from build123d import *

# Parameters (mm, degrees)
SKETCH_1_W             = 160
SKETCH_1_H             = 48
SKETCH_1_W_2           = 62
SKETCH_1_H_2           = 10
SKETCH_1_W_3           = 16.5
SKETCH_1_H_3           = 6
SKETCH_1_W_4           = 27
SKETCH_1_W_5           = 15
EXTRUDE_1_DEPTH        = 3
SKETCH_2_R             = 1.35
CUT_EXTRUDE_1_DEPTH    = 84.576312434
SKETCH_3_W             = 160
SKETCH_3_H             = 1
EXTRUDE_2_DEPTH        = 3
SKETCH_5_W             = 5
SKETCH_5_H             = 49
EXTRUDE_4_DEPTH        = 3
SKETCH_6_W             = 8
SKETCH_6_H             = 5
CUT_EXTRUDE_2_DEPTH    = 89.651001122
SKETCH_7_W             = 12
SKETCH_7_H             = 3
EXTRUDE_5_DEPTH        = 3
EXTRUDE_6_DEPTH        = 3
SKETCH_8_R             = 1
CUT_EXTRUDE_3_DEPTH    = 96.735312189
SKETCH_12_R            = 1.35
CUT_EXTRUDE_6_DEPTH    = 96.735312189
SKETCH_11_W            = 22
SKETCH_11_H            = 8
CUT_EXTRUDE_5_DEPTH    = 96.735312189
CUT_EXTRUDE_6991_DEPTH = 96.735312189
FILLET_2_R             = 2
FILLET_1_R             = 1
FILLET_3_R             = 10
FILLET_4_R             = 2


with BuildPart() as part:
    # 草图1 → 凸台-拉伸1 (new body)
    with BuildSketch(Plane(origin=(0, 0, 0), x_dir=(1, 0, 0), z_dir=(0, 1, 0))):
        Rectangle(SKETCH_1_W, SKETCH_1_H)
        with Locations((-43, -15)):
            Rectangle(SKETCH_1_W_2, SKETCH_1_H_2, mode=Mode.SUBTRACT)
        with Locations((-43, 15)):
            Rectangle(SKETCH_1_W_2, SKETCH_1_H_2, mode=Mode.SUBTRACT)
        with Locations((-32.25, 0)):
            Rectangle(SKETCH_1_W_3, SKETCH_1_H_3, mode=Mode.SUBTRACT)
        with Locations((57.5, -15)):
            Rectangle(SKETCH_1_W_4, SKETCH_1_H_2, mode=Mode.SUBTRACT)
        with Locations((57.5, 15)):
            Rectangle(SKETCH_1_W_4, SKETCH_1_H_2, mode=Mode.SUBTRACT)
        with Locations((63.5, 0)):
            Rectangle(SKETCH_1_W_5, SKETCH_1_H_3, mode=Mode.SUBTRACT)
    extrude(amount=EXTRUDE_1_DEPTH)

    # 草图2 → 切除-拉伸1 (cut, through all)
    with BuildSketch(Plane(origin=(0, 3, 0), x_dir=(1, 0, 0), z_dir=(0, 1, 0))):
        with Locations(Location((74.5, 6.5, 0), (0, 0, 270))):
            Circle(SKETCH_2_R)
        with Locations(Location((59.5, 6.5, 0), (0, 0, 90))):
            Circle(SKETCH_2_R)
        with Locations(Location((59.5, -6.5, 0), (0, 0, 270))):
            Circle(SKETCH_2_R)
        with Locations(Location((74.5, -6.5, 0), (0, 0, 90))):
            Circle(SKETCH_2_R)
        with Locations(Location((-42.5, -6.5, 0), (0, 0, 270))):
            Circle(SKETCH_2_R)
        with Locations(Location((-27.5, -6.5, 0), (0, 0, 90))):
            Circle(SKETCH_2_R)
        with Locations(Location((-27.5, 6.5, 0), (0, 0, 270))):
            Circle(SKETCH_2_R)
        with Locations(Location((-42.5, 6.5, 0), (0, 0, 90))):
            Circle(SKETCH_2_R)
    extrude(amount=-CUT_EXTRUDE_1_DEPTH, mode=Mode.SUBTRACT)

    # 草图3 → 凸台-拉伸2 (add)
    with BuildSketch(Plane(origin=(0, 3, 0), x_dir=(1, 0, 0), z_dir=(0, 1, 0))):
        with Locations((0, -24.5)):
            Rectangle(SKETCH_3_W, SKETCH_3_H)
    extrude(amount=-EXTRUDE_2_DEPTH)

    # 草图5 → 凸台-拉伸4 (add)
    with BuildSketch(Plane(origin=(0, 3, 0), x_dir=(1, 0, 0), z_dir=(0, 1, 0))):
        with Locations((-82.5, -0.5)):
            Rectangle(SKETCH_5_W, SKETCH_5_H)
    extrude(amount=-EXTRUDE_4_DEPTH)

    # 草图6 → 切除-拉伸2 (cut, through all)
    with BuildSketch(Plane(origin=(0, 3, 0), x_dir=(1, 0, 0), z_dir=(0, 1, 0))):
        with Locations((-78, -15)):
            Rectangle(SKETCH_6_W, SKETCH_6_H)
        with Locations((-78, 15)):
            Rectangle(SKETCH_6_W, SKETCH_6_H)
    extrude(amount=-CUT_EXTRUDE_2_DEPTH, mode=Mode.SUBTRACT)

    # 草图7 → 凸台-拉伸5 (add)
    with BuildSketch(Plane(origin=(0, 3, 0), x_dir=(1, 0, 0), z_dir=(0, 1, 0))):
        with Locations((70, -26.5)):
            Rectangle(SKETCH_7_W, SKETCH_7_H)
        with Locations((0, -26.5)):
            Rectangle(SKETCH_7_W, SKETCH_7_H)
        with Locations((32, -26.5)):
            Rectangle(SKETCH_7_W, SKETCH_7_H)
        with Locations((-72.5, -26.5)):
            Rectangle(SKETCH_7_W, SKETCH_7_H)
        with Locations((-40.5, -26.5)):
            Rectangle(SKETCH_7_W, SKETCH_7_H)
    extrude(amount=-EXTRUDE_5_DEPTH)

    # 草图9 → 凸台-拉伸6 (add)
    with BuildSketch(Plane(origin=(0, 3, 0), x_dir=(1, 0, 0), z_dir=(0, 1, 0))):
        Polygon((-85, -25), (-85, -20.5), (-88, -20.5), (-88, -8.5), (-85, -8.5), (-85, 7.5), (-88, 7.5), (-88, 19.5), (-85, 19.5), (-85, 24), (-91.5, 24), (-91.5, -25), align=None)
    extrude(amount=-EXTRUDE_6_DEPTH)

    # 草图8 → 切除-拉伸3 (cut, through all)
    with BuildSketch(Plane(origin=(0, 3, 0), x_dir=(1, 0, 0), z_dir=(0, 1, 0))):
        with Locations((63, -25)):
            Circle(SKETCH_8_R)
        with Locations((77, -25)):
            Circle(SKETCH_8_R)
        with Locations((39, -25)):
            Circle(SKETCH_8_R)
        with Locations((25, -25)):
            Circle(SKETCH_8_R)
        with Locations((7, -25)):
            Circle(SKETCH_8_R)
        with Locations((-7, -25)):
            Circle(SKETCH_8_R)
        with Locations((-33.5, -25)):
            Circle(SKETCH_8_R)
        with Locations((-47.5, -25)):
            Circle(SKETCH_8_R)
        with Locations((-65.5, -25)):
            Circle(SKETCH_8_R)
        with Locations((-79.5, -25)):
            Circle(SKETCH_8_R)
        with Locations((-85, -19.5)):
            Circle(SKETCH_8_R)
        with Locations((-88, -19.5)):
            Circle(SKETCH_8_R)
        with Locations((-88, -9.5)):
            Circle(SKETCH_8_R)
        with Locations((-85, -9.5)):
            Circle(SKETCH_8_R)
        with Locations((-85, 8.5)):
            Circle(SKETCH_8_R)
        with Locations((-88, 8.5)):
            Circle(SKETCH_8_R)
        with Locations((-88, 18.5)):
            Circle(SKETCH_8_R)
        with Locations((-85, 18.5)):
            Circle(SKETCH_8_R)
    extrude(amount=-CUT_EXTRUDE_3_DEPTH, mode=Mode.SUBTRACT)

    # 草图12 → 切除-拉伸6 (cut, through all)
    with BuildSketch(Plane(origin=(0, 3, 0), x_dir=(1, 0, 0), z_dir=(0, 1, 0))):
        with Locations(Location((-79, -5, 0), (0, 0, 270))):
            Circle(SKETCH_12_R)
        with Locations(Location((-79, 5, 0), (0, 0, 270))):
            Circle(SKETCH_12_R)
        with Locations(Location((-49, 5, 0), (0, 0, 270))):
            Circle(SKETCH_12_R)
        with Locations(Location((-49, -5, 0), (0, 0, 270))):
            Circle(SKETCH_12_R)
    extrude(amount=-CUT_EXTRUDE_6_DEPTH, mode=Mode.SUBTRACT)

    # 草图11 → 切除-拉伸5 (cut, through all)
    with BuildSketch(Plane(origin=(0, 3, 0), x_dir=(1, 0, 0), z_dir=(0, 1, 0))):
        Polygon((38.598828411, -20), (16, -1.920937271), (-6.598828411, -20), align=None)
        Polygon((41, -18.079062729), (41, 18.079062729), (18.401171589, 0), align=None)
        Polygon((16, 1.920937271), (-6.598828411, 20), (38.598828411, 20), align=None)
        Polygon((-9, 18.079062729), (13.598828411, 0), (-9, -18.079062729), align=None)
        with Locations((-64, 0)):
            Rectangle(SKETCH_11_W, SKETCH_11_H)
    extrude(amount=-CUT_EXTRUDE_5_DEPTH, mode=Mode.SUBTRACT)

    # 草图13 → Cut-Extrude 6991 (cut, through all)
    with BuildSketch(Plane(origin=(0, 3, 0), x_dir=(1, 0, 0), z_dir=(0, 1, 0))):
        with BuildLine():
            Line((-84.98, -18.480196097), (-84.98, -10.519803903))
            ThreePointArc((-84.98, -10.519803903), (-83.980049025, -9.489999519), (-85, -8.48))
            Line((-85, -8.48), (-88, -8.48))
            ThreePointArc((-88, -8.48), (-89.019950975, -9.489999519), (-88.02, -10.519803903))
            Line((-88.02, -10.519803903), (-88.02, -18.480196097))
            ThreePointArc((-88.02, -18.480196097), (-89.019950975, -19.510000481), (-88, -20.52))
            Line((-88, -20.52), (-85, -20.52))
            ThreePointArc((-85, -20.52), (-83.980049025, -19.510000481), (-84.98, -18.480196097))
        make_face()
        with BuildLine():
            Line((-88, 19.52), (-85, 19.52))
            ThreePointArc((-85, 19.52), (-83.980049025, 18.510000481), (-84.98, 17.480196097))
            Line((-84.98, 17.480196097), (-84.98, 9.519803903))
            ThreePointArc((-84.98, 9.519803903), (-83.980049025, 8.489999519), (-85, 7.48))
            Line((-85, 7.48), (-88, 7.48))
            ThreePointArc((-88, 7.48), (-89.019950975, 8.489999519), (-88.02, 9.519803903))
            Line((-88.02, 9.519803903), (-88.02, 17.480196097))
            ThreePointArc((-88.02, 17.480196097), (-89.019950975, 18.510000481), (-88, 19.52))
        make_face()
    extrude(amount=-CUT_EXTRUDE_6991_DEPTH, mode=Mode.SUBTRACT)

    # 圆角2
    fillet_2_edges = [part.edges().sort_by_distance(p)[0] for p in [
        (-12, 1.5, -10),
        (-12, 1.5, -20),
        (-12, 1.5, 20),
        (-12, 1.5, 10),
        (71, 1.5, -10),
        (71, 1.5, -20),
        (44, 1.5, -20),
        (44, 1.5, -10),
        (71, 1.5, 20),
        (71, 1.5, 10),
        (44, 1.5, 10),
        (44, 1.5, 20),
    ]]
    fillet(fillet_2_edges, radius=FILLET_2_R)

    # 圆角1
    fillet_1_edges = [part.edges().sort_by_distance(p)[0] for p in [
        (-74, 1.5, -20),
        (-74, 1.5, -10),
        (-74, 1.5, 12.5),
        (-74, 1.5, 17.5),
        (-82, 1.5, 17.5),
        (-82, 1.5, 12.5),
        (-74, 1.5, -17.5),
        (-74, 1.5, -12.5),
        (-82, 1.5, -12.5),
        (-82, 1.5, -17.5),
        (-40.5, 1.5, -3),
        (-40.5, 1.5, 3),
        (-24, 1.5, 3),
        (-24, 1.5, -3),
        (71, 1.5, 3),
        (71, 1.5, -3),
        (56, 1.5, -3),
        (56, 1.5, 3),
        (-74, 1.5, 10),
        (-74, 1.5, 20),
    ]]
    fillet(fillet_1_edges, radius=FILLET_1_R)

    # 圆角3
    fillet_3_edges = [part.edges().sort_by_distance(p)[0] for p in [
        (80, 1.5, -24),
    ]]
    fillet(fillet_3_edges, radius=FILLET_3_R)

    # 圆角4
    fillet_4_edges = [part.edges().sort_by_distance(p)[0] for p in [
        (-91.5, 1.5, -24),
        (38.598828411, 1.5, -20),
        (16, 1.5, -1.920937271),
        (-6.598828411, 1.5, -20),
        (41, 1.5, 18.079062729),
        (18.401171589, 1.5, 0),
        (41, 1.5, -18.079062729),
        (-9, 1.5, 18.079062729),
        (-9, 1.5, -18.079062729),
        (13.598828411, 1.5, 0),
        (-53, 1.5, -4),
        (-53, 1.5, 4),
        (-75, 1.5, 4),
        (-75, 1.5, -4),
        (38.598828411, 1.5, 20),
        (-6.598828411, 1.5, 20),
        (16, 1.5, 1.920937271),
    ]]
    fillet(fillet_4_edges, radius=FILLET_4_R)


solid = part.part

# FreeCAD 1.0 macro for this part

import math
import FreeCAD as App
import Part
import Sketcher
from FreeCAD import Vector


def edges_at(feature, points):
    """Names of the edges that pass closest to the given points."""
    edges = feature.Shape.Edges
    near = lambda p: min(range(len(edges)), key=lambda i: edges[i].distToShape(Part.Vertex(*p))[0])
    return sorted({f"Edge{near(p) + 1}" for p in points})


def add_polygon(sketch, points):
    """Adds a closed chain of lines whose ends are joined by coincident constraints."""
    first, n = sketch.GeometryCount, len(points)
    for a, b in zip(points, points[1:] + points[:1]):
        sketch.addGeometry(Part.LineSegment(App.Vector(*a, 0), App.Vector(*b, 0)), False)
    for i in range(n):
        sketch.addConstraint(Sketcher.Constraint("Coincident", first + i, 2, first + (i + 1) % n, 1))

doc = App.newDocument("Part")
body = doc.addObject("PartDesign::Body", "Body")

sketch1 = body.newObject("Sketcher::SketchObject", "Sketch")
sketch1.AttachmentSupport = (doc.getObject("XZ_Plane"), [""])
sketch1.MapMode = "FlatFace"
add_polygon(sketch1, [(-80, -24), (-80, 24), (80, 24), (80, -24)])
add_polygon(sketch1, [(-12, 20), (-74, 20), (-74, 10), (-12, 10)])
add_polygon(sketch1, [(71, 20), (44, 20), (44, 10), (71, 10)])
add_polygon(sketch1, [(-24, 3), (-40.5, 3), (-40.5, -3), (-24, -3)])
add_polygon(sketch1, [(-12, -10), (-74, -10), (-74, -20), (-12, -20)])
add_polygon(sketch1, [(71, 3), (56, 3), (56, -3), (71, -3)])
add_polygon(sketch1, [(71, -10), (44, -10), (44, -20), (71, -20)])
sketch1.addConstraint([
    Sketcher.Constraint("Vertical", 0),
    Sketcher.Constraint("Horizontal", 1),
    Sketcher.Constraint("Vertical", 2),
    Sketcher.Constraint("Horizontal", 3),
    Sketcher.Constraint("Horizontal", 4),
    Sketcher.Constraint("Vertical", 5),
    Sketcher.Constraint("Horizontal", 6),
    Sketcher.Constraint("Vertical", 7),
    Sketcher.Constraint("Horizontal", 8),
    Sketcher.Constraint("Vertical", 9),
    Sketcher.Constraint("Horizontal", 10),
    Sketcher.Constraint("Vertical", 11),
    Sketcher.Constraint("Horizontal", 12),
    Sketcher.Constraint("Vertical", 13),
    Sketcher.Constraint("Horizontal", 14),
    Sketcher.Constraint("Vertical", 15),
    Sketcher.Constraint("Horizontal", 16),
    Sketcher.Constraint("Vertical", 17),
    Sketcher.Constraint("Horizontal", 18),
    Sketcher.Constraint("Vertical", 19),
    Sketcher.Constraint("Horizontal", 20),
    Sketcher.Constraint("Vertical", 21),
    Sketcher.Constraint("Horizontal", 22),
    Sketcher.Constraint("Vertical", 23),
    Sketcher.Constraint("Horizontal", 24),
    Sketcher.Constraint("Vertical", 25),
    Sketcher.Constraint("Horizontal", 26),
    Sketcher.Constraint("Vertical", 27),
    Sketcher.Constraint("Symmetric", 0, 2, 2, 2, -1, 1),
    Sketcher.Constraint("Symmetric", 5, 2, 16, 2, -1),
    Sketcher.Constraint("Symmetric", 7, 2, 18, 2, -1),
    Sketcher.Constraint("Symmetric", 9, 2, 24, 2, -1),
    Sketcher.Constraint("Symmetric", 11, 2, 26, 2, -1),
    Sketcher.Constraint("Horizontal", 7, 2, 8, 2),
    Sketcher.Constraint("Horizontal", 6, 2, 9, 2),
    Sketcher.Constraint("Horizontal", 15, 2, 20, 2),
    Sketcher.Constraint("Horizontal", 14, 2, 21, 2),
    Sketcher.Constraint("Vertical", 11, 2, 22, 2),
    Sketcher.Constraint("DistanceX", 1, 1, 1, 2, 160.0),
    Sketcher.Constraint("DistanceX", 4, 2, 4, 1, 62.0),
    Sketcher.Constraint("DistanceX", 8, 2, 8, 1, 27.0),
    Sketcher.Constraint("DistanceX", 20, 2, 20, 1, 15.0),
    Sketcher.Constraint("DistanceY", 0, 1, 0, 2, 48.0),
    Sketcher.Constraint("DistanceY", 5, 2, 5, 1, 10.0),
    Sketcher.Constraint("DistanceY", 13, 2, 13, 1, 6.0),
    Sketcher.Constraint("DistanceX", 12, 2, 12, 1, 16.5),
    Sketcher.Constraint("DistanceX", 4, 2, -1, 1, 74.0),
    Sketcher.Constraint("DistanceY", -1, 1, 4, 2, 20.0),
    Sketcher.Constraint("DistanceX", -1, 1, 8, 2, 44.0),
    Sketcher.Constraint("DistanceY", -1, 1, 12, 2, 3.0),
    Sketcher.Constraint("DistanceX", 14, 2, -1, 1, 24.0),
])
pad1 = body.newObject("PartDesign::Pad", "Pad")
pad1.Profile = sketch1
pad1.Length = 3
pad1.Reversed = True

sketch2 = body.newObject("Sketcher::SketchObject", "Sketch001")
sketch2.AttachmentSupport = (doc.getObject("XZ_Plane"), [""])
sketch2.MapMode = "FlatFace"
sketch2.AttachmentOffset = App.Placement(Vector(0, 0, -3), App.Rotation())
sketch2.addGeometry([
    Part.Circle(Vector(74.5, -6.5, 0), Vector(0, 0, 1), 1.35),
    Part.Circle(Vector(59.5, -6.5, 0), Vector(0, 0, 1), 1.35),
    Part.Circle(Vector(59.5, 6.5, 0), Vector(0, 0, 1), 1.35),
    Part.Circle(Vector(74.5, 6.5, 0), Vector(0, 0, 1), 1.35),
    Part.Circle(Vector(-42.5, 6.5, 0), Vector(0, 0, 1), 1.35),
    Part.Circle(Vector(-27.5, 6.5, 0), Vector(0, 0, 1), 1.35),
    Part.Circle(Vector(-27.5, -6.5, 0), Vector(0, 0, 1), 1.35),
    Part.Circle(Vector(-42.5, -6.5, 0), Vector(0, 0, 1), 1.35),
], False)
sketch2.addConstraint([
    Sketcher.Constraint("Equal", 0, 1),
    Sketcher.Constraint("Equal", 1, 2),
    Sketcher.Constraint("Equal", 2, 3),
    Sketcher.Constraint("Equal", 3, 4),
    Sketcher.Constraint("Equal", 4, 5),
    Sketcher.Constraint("Equal", 5, 6),
    Sketcher.Constraint("Equal", 6, 7),
    Sketcher.Constraint("Symmetric", 1, 3, 2, 3, -1),
    Sketcher.Constraint("Symmetric", 0, 3, 3, 3, -1),
    Sketcher.Constraint("Symmetric", 5, 3, 6, 3, -1),
    Sketcher.Constraint("Symmetric", 4, 3, 7, 3, -1),
    Sketcher.Constraint("Horizontal", 0, 3, 1, 3),
    Sketcher.Constraint("Horizontal", 3, 3, 4, 3),
    Sketcher.Constraint("Horizontal", 4, 3, 5, 3),
    Sketcher.Constraint("Diameter", 0, 2.7),
    Sketcher.Constraint("DistanceX", 1, 3, 0, 3, 15.0),
    Sketcher.Constraint("DistanceY", 1, 3, 2, 3, 13.0),
    Sketcher.Constraint("DistanceX", 4, 3, 2, 3, 102.0),
    Sketcher.Constraint("DistanceX", 4, 3, 5, 3, 15.0),
    Sketcher.Constraint("DistanceX", -1, 1, 0, 3, 74.5),
])
pocket1 = body.newObject("PartDesign::Pocket", "Pocket")
pocket1.Profile = sketch2
pocket1.Type = "ThroughAll"
pocket1.Reversed = True

sketch3 = body.newObject("Sketcher::SketchObject", "Sketch002")
sketch3.AttachmentSupport = (doc.getObject("XZ_Plane"), [""])
sketch3.MapMode = "FlatFace"
sketch3.AttachmentOffset = App.Placement(Vector(0, 0, -3), App.Rotation())
add_polygon(sketch3, [(-80, 24), (-80, 25), (80, 25), (80, 24)])
sketch3.addConstraint([
    Sketcher.Constraint("Vertical", 0),
    Sketcher.Constraint("Horizontal", 1),
    Sketcher.Constraint("Vertical", 2),
    Sketcher.Constraint("Horizontal", 3),
    Sketcher.Constraint("DistanceX", 1, 1, 1, 2, 160.0),
    Sketcher.Constraint("DistanceY", 0, 1, 0, 2, 1.0),
    Sketcher.Constraint("DistanceX", 0, 2, -1, 1, 80.0),
    Sketcher.Constraint("DistanceY", -1, 1, 0, 2, 25.0),
])
pad2 = body.newObject("PartDesign::Pad", "Pad001")
pad2.Profile = sketch3
pad2.Length = 3

sketch4 = body.newObject("Sketcher::SketchObject", "Sketch003")
sketch4.AttachmentSupport = (doc.getObject("XZ_Plane"), [""])
sketch4.MapMode = "FlatFace"
sketch4.AttachmentOffset = App.Placement(Vector(0, 0, -3), App.Rotation())
add_polygon(sketch4, [(-85, -24), (-85, 25), (-80, 25), (-80, -24)])
sketch4.addConstraint([
    Sketcher.Constraint("Vertical", 0),
    Sketcher.Constraint("Horizontal", 1),
    Sketcher.Constraint("Vertical", 2),
    Sketcher.Constraint("Horizontal", 3),
    Sketcher.Constraint("DistanceX", 1, 1, 1, 2, 5.0),
    Sketcher.Constraint("DistanceY", 0, 1, 0, 2, 49.0),
    Sketcher.Constraint("DistanceX", 0, 2, -1, 1, 85.0),
    Sketcher.Constraint("DistanceY", -1, 1, 0, 2, 25.0),
])
pad3 = body.newObject("PartDesign::Pad", "Pad002")
pad3.Profile = sketch4
pad3.Length = 3

sketch5 = body.newObject("Sketcher::SketchObject", "Sketch004")
sketch5.AttachmentSupport = (doc.getObject("XZ_Plane"), [""])
sketch5.MapMode = "FlatFace"
sketch5.AttachmentOffset = App.Placement(Vector(0, 0, -3), App.Rotation())
add_polygon(sketch5, [(-82, 12.5), (-82, 17.5), (-74, 17.5), (-74, 12.5)])
add_polygon(sketch5, [(-82, -17.5), (-82, -12.5), (-74, -12.5), (-74, -17.5)])
sketch5.addConstraint([
    Sketcher.Constraint("Vertical", 0),
    Sketcher.Constraint("Horizontal", 1),
    Sketcher.Constraint("Vertical", 2),
    Sketcher.Constraint("Horizontal", 3),
    Sketcher.Constraint("Vertical", 4),
    Sketcher.Constraint("Horizontal", 5),
    Sketcher.Constraint("Vertical", 6),
    Sketcher.Constraint("Horizontal", 7),
    Sketcher.Constraint("Symmetric", 3, 2, 4, 2, -1),
    Sketcher.Constraint("Symmetric", 1, 2, 6, 2, -1),
    Sketcher.Constraint("DistanceX", 1, 1, 1, 2, 8.0),
    Sketcher.Constraint("DistanceY", 0, 1, 0, 2, 5.0),
    Sketcher.Constraint("DistanceX", 0, 2, -1, 1, 82.0),
    Sketcher.Constraint("DistanceY", 4, 2, 3, 2, 25.0),
])
pocket2 = body.newObject("PartDesign::Pocket", "Pocket001")
pocket2.Profile = sketch5
pocket2.Type = "ThroughAll"
pocket2.Reversed = True

sketch6 = body.newObject("Sketcher::SketchObject", "Sketch005")
sketch6.AttachmentSupport = (doc.getObject("XZ_Plane"), [""])
sketch6.MapMode = "FlatFace"
sketch6.AttachmentOffset = App.Placement(Vector(0, 0, -3), App.Rotation())
add_polygon(sketch6, [(64, 25), (64, 28), (76, 28), (76, 25)])
add_polygon(sketch6, [(-6, 25), (-6, 28), (6, 28), (6, 25)])
add_polygon(sketch6, [(26, 25), (26, 28), (38, 28), (38, 25)])
add_polygon(sketch6, [(-78.5, 25), (-78.5, 28), (-66.5, 28), (-66.5, 25)])
add_polygon(sketch6, [(-46.5, 25), (-46.5, 28), (-34.5, 28), (-34.5, 25)])
sketch6.addConstraint([
    Sketcher.Constraint("Vertical", 0),
    Sketcher.Constraint("Horizontal", 1),
    Sketcher.Constraint("Vertical", 2),
    Sketcher.Constraint("Horizontal", 3),
    Sketcher.Constraint("Vertical", 4),
    Sketcher.Constraint("Horizontal", 5),
    Sketcher.Constraint("Vertical", 6),
    Sketcher.Constraint("Horizontal", 7),
    Sketcher.Constraint("Vertical", 8),
    Sketcher.Constraint("Horizontal", 9),
    Sketcher.Constraint("Vertical", 10),
    Sketcher.Constraint("Horizontal", 11),
    Sketcher.Constraint("Vertical", 12),
    Sketcher.Constraint("Horizontal", 13),
    Sketcher.Constraint("Vertical", 14),
    Sketcher.Constraint("Horizontal", 15),
    Sketcher.Constraint("Vertical", 16),
    Sketcher.Constraint("Horizontal", 17),
    Sketcher.Constraint("Vertical", 18),
    Sketcher.Constraint("Horizontal", 19),
    Sketcher.Constraint("Horizontal", 1, 2, 4, 2),
    Sketcher.Constraint("Horizontal", 3, 2, 6, 2),
    Sketcher.Constraint("Horizontal", 5, 2, 8, 2),
    Sketcher.Constraint("Horizontal", 7, 2, 10, 2),
    Sketcher.Constraint("Horizontal", 9, 2, 12, 2),
    Sketcher.Constraint("Horizontal", 11, 2, 14, 2),
    Sketcher.Constraint("Horizontal", 13, 2, 16, 2),
    Sketcher.Constraint("Horizontal", 15, 2, 18, 2),
    Sketcher.Constraint("Equal", 3, 5),
    Sketcher.Constraint("Equal", 7, 9),
    Sketcher.Constraint("Equal", 11, 13),
    Sketcher.Constraint("Equal", 15, 17),
    Sketcher.Constraint("DistanceX", 1, 1, 1, 2, 12.0),
    Sketcher.Constraint("DistanceY", 0, 1, 0, 2, 3.0),
    Sketcher.Constraint("DistanceX", -1, 1, 0, 2, 64.0),
    Sketcher.Constraint("DistanceY", -1, 1, 0, 2, 28.0),
    Sketcher.Constraint("DistanceX", 4, 2, -1, 1, 6.0),
    Sketcher.Constraint("DistanceX", -1, 1, 8, 2, 26.0),
    Sketcher.Constraint("DistanceX", 13, 2, 16, 2, 20.0),
    Sketcher.Constraint("DistanceX", 12, 2, -1, 1, 78.5),
])
pad4 = body.newObject("PartDesign::Pad", "Pad003")
pad4.Profile = sketch6
pad4.Length = 3

sketch7 = body.newObject("Sketcher::SketchObject", "Sketch006")
sketch7.AttachmentSupport = (doc.getObject("XZ_Plane"), [""])
sketch7.MapMode = "FlatFace"
sketch7.AttachmentOffset = App.Placement(Vector(0, 0, -3), App.Rotation())
add_polygon(sketch7, [(-85, 25), (-85, 20.5), (-88, 20.5), (-88, 8.5), (-85, 8.5), (-85, -7.5), (-88, -7.5), (-88, -19.5), (-85, -19.5), (-85, -24), (-91.5, -24), (-91.5, 25)])
sketch7.addConstraint([
    Sketcher.Constraint("Vertical", 0),
    Sketcher.Constraint("Horizontal", 1),
    Sketcher.Constraint("Vertical", 2),
    Sketcher.Constraint("Horizontal", 3),
    Sketcher.Constraint("Vertical", 4),
    Sketcher.Constraint("Horizontal", 5),
    Sketcher.Constraint("Vertical", 6),
    Sketcher.Constraint("Horizontal", 7),
    Sketcher.Constraint("Vertical", 8),
    Sketcher.Constraint("Horizontal", 9),
    Sketcher.Constraint("Vertical", 10),
    Sketcher.Constraint("Horizontal", 11),
    Sketcher.Constraint("Vertical", 0, 2, 3, 2),
    Sketcher.Constraint("Vertical", 2, 2, 5, 2),
    Sketcher.Constraint("Vertical", 4, 2, 7, 2),
    Sketcher.Constraint("Equal", 2, 6),
    Sketcher.Constraint("Equal", 0, 8),
    Sketcher.Constraint("DistanceX", 1, 2, 1, 1, 3.0),
    Sketcher.Constraint("DistanceY", 2, 2, 2, 1, 12.0),
    Sketcher.Constraint("DistanceY", 4, 2, 4, 1, 16.0),
    Sketcher.Constraint("DistanceY", 10, 1, 10, 2, 49.0),
    Sketcher.Constraint("DistanceX", 9, 2, 9, 1, 6.5),
    Sketcher.Constraint("DistanceX", 0, 2, -1, 1, 85.0),
    Sketcher.Constraint("DistanceY", 8, 2, -1, 1, 24.0),
])
pad5 = body.newObject("PartDesign::Pad", "Pad004")
pad5.Profile = sketch7
pad5.Length = 3

sketch8 = body.newObject("Sketcher::SketchObject", "Sketch007")
sketch8.AttachmentSupport = (doc.getObject("XZ_Plane"), [""])
sketch8.MapMode = "FlatFace"
sketch8.AttachmentOffset = App.Placement(Vector(0, 0, -3), App.Rotation())
sketch8.addGeometry([
    Part.Circle(Vector(63, 25, 0), Vector(0, 0, 1), 1),
    Part.Circle(Vector(77, 25, 0), Vector(0, 0, 1), 1),
    Part.Circle(Vector(39, 25, 0), Vector(0, 0, 1), 1),
    Part.Circle(Vector(25, 25, 0), Vector(0, 0, 1), 1),
    Part.Circle(Vector(7, 25, 0), Vector(0, 0, 1), 1),
    Part.Circle(Vector(-7, 25, 0), Vector(0, 0, 1), 1),
    Part.Circle(Vector(-33.5, 25, 0), Vector(0, 0, 1), 1),
    Part.Circle(Vector(-47.5, 25, 0), Vector(0, 0, 1), 1),
    Part.Circle(Vector(-65.5, 25, 0), Vector(0, 0, 1), 1),
    Part.Circle(Vector(-79.5, 25, 0), Vector(0, 0, 1), 1),
    Part.Circle(Vector(-85, 19.5, 0), Vector(0, 0, 1), 1),
    Part.Circle(Vector(-88, 19.5, 0), Vector(0, 0, 1), 1),
    Part.Circle(Vector(-88, 9.5, 0), Vector(0, 0, 1), 1),
    Part.Circle(Vector(-85, 9.5, 0), Vector(0, 0, 1), 1),
    Part.Circle(Vector(-85, -8.5, 0), Vector(0, 0, 1), 1),
    Part.Circle(Vector(-88, -8.5, 0), Vector(0, 0, 1), 1),
    Part.Circle(Vector(-88, -18.5, 0), Vector(0, 0, 1), 1),
    Part.Circle(Vector(-85, -18.5, 0), Vector(0, 0, 1), 1),
], False)
sketch8.addConstraint([
    Sketcher.Constraint("Equal", 0, 1),
    Sketcher.Constraint("Equal", 1, 2),
    Sketcher.Constraint("Equal", 2, 3),
    Sketcher.Constraint("Equal", 3, 4),
    Sketcher.Constraint("Equal", 4, 5),
    Sketcher.Constraint("Equal", 5, 6),
    Sketcher.Constraint("Equal", 6, 7),
    Sketcher.Constraint("Equal", 7, 8),
    Sketcher.Constraint("Equal", 8, 9),
    Sketcher.Constraint("Equal", 9, 10),
    Sketcher.Constraint("Equal", 10, 11),
    Sketcher.Constraint("Equal", 11, 12),
    Sketcher.Constraint("Equal", 12, 13),
    Sketcher.Constraint("Equal", 13, 14),
    Sketcher.Constraint("Equal", 14, 15),
    Sketcher.Constraint("Equal", 15, 16),
    Sketcher.Constraint("Equal", 16, 17),
    Sketcher.Constraint("Symmetric", 4, 3, 5, 3, -2),
    Sketcher.Constraint("Horizontal", 0, 3, 1, 3),
    Sketcher.Constraint("Horizontal", 1, 3, 2, 3),
    Sketcher.Constraint("Horizontal", 2, 3, 3, 3),
    Sketcher.Constraint("Horizontal", 3, 3, 4, 3),
    Sketcher.Constraint("Horizontal", 5, 3, 6, 3),
    Sketcher.Constraint("Horizontal", 6, 3, 7, 3),
    Sketcher.Constraint("Horizontal", 7, 3, 8, 3),
    Sketcher.Constraint("Horizontal", 8, 3, 9, 3),
    Sketcher.Constraint("Horizontal", 10, 3, 11, 3),
    Sketcher.Constraint("Horizontal", 12, 3, 13, 3),
    Sketcher.Constraint("Horizontal", 14, 3, 15, 3),
    Sketcher.Constraint("Horizontal", 16, 3, 17, 3),
    Sketcher.Constraint("Vertical", 11, 3, 12, 3),
    Sketcher.Constraint("Vertical", 10, 3, 13, 3),
    Sketcher.Constraint("Vertical", 13, 3, 14, 3),
    Sketcher.Constraint("Vertical", 12, 3, 15, 3),
    Sketcher.Constraint("Vertical", 15, 3, 16, 3),
    Sketcher.Constraint("Vertical", 14, 3, 17, 3),
    Sketcher.Constraint("Diameter", 0, 2.0),
    Sketcher.Constraint("DistanceX", -1, 1, 0, 3, 63.0),
    Sketcher.Constraint("DistanceY", -1, 1, 0, 3, 25.0),
    Sketcher.Constraint("DistanceX", -1, 1, 1, 3, 77.0),
    Sketcher.Constraint("DistanceX", -1, 1, 2, 3, 39.0),
    Sketcher.Constraint("DistanceX", -1, 1, 3, 3, 25.0),
    Sketcher.Constraint("DistanceX", -1, 1, 4, 3, 7.0),
    Sketcher.Constraint("DistanceX", 10, 3, -1, 1, 85.0),
    Sketcher.Constraint("DistanceX", 11, 3, -1, 1, 88.0),
    Sketcher.Constraint("DistanceX", 7, 3, 6, 3, 14.0),
    Sketcher.Constraint("DistanceX", 8, 3, 7, 3, 18.0),
    Sketcher.Constraint("DistanceX", 9, 3, 8, 3, 14.0),
    Sketcher.Constraint("DistanceY", 12, 3, 11, 3, 10.0),
    Sketcher.Constraint("DistanceY", 14, 3, 13, 3, 18.0),
    Sketcher.Constraint("DistanceY", 16, 3, 15, 3, 10.0),
    Sketcher.Constraint("DistanceX", 6, 3, -1, 1, 33.5),
    Sketcher.Constraint("DistanceY", -1, 1, 10, 3, 19.5),
])
pocket3 = body.newObject("PartDesign::Pocket", "Pocket002")
pocket3.Profile = sketch8
pocket3.Type = "ThroughAll"
pocket3.Reversed = True

sketch9 = body.newObject("Sketcher::SketchObject", "Sketch008")
sketch9.AttachmentSupport = (doc.getObject("XZ_Plane"), [""])
sketch9.MapMode = "FlatFace"
sketch9.AttachmentOffset = App.Placement(Vector(0, 0, -3), App.Rotation())
sketch9.addGeometry([
    Part.Circle(Vector(-79, 5, 0), Vector(0, 0, 1), 1.35),
    Part.Circle(Vector(-79, -5, 0), Vector(0, 0, 1), 1.35),
    Part.Circle(Vector(-49, -5, 0), Vector(0, 0, 1), 1.35),
    Part.Circle(Vector(-49, 5, 0), Vector(0, 0, 1), 1.35),
], False)
sketch9.addConstraint([
    Sketcher.Constraint("Equal", 0, 1),
    Sketcher.Constraint("Equal", 1, 2),
    Sketcher.Constraint("Equal", 2, 3),
    Sketcher.Constraint("Symmetric", 0, 3, 1, 3, -1),
    Sketcher.Constraint("Symmetric", 2, 3, 3, 3, -1),
    Sketcher.Constraint("Horizontal", 1, 3, 2, 3),
    Sketcher.Constraint("Diameter", 0, 2.7),
    Sketcher.Constraint("DistanceX", 0, 3, -1, 1, 79.0),
    Sketcher.Constraint("DistanceY", -1, 1, 0, 3, 5.0),
    Sketcher.Constraint("DistanceX", 2, 3, -1, 1, 49.0),
])
pocket4 = body.newObject("PartDesign::Pocket", "Pocket003")
pocket4.Profile = sketch9
pocket4.Type = "ThroughAll"
pocket4.Reversed = True

sketch10 = body.newObject("Sketcher::SketchObject", "Sketch009")
sketch10.AttachmentSupport = (doc.getObject("XZ_Plane"), [""])
sketch10.MapMode = "FlatFace"
sketch10.AttachmentOffset = App.Placement(Vector(0, 0, -3), App.Rotation())
add_polygon(sketch10, [(38.598828, 20), (16, 1.920937), (-6.598828, 20)])
add_polygon(sketch10, [(41, 18.079063), (41, -18.079063), (18.401172, 0)])
add_polygon(sketch10, [(-6.598828, -20), (16, -1.920937), (38.598828, -20)])
add_polygon(sketch10, [(13.598828, 0), (-9, -18.079063), (-9, 18.079063)])
add_polygon(sketch10, [(-75, -4), (-75, 4), (-53, 4), (-53, -4)])
sketch10.addConstraint([
    Sketcher.Constraint("Horizontal", 2),
    Sketcher.Constraint("Vertical", 3),
    Sketcher.Constraint("Horizontal", 8),
    Sketcher.Constraint("Vertical", 10),
    Sketcher.Constraint("Vertical", 12),
    Sketcher.Constraint("Horizontal", 13),
    Sketcher.Constraint("Vertical", 14),
    Sketcher.Constraint("Horizontal", 15),
    Sketcher.Constraint("Symmetric", 0, 2, 6, 2, -1),
    Sketcher.Constraint("Symmetric", 2, 2, 7, 2, -1),
    Sketcher.Constraint("PointOnObject", 4, 2, -1),
    Sketcher.Constraint("PointOnObject", 11, 2, -1),
    Sketcher.Constraint("Parallel", 1, 4),
    Sketcher.Constraint("Parallel", 0, 5),
    Sketcher.Constraint("Parallel", 5, 6),
    Sketcher.Constraint("Parallel", 4, 7),
    Sketcher.Constraint("Parallel", 6, 9),
    Sketcher.Constraint("Parallel", 7, 11),
    Sketcher.Constraint("Horizontal", 3, 2, 9, 2),
    Sketcher.Constraint("Equal", 1, 4),
    Sketcher.Constraint("DistanceX", 13, 1, 13, 2, 22.0),
    Sketcher.Constraint("DistanceY", 12, 1, 12, 2, 8.0),
    Sketcher.Constraint("DistanceX", -1, 1, 0, 2, 16.0),
    Sketcher.Constraint("DistanceY", -1, 1, 1, 2, 20.0),
    Sketcher.Constraint("DistanceX", -1, 1, 3, 2, 41.0),
    Sketcher.Constraint("DistanceX", 9, 2, -1, 1, 9.0),
    Sketcher.Constraint("DistanceX", 12, 2, -1, 1, 75.0),
    Sketcher.Constraint("DistanceY", -1, 1, 12, 2, 4.0),
    Sketcher.Constraint("Distance", 0, 28.940621),
    Sketcher.Constraint("DistanceX", 2, 1, 2, 2, 45.197657),
])
pocket5 = body.newObject("PartDesign::Pocket", "Pocket004")
pocket5.Profile = sketch10
pocket5.Type = "ThroughAll"
pocket5.Reversed = True

sketch11 = body.newObject("Sketcher::SketchObject", "Sketch010")
sketch11.AttachmentSupport = (doc.getObject("XZ_Plane"), [""])
sketch11.MapMode = "FlatFace"
sketch11.AttachmentOffset = App.Placement(Vector(0, 0, -3), App.Rotation())
sketch11.addGeometry([
    Part.LineSegment(Vector(-84.98, 18.480196, 0), Vector(-84.98, 10.519804, 0)),
    Part.ArcOfCircle(Part.Circle(Vector(-85, 9.5, 0), Vector(0, 0, 1), 1.02), math.radians(-90), math.radians(88.876481)),
    Part.LineSegment(Vector(-85, 8.48, 0), Vector(-88, 8.48, 0)),
    Part.ArcOfCircle(Part.Circle(Vector(-88, 9.5, 0), Vector(0, 0, 1), 1.02), math.radians(91.123519), math.radians(270)),
    Part.LineSegment(Vector(-88.02, 10.519804, 0), Vector(-88.02, 18.480196, 0)),
    Part.ArcOfCircle(Part.Circle(Vector(-88, 19.5, 0), Vector(0, 0, 1), 1.02), math.radians(90), math.radians(268.876481)),
    Part.LineSegment(Vector(-88, 20.52, 0), Vector(-85, 20.52, 0)),
    Part.ArcOfCircle(Part.Circle(Vector(-85, 19.5, 0), Vector(0, 0, 1), 1.02), math.radians(-88.876481), math.radians(90)),
    Part.LineSegment(Vector(-85, -19.52, 0), Vector(-88, -19.52, 0)),
    Part.ArcOfCircle(Part.Circle(Vector(-88, -18.5, 0), Vector(0, 0, 1), 1.02), math.radians(91.123519), math.radians(270)),
    Part.LineSegment(Vector(-88.02, -17.480196, 0), Vector(-88.02, -9.519804, 0)),
    Part.ArcOfCircle(Part.Circle(Vector(-88, -8.5, 0), Vector(0, 0, 1), 1.02), math.radians(90), math.radians(268.876481)),
    Part.LineSegment(Vector(-88, -7.48, 0), Vector(-85, -7.48, 0)),
    Part.ArcOfCircle(Part.Circle(Vector(-85, -8.5, 0), Vector(0, 0, 1), 1.02), math.radians(-88.876481), math.radians(90)),
    Part.LineSegment(Vector(-84.98, -9.519804, 0), Vector(-84.98, -17.480196, 0)),
    Part.ArcOfCircle(Part.Circle(Vector(-85, -18.5, 0), Vector(0, 0, 1), 1.02), math.radians(-90), math.radians(88.876481)),
], False)
sketch11.addConstraint([
    Sketcher.Constraint("Coincident", 0, 2, 1, 2),
    Sketcher.Constraint("Tangent", 1, 1, 2, 1),
    Sketcher.Constraint("Tangent", 2, 2, 3, 2),
    Sketcher.Constraint("Coincident", 3, 1, 4, 1),
    Sketcher.Constraint("Coincident", 4, 2, 5, 2),
    Sketcher.Constraint("Tangent", 5, 1, 6, 1),
    Sketcher.Constraint("Tangent", 6, 2, 7, 2),
    Sketcher.Constraint("Coincident", 7, 1, 0, 1),
    Sketcher.Constraint("Tangent", 8, 2, 9, 2),
    Sketcher.Constraint("Coincident", 9, 1, 10, 1),
    Sketcher.Constraint("Coincident", 10, 2, 11, 2),
    Sketcher.Constraint("Tangent", 11, 1, 12, 1),
    Sketcher.Constraint("Tangent", 12, 2, 13, 2),
    Sketcher.Constraint("Coincident", 13, 1, 14, 1),
    Sketcher.Constraint("Coincident", 14, 2, 15, 2),
    Sketcher.Constraint("Tangent", 15, 1, 8, 1),
    Sketcher.Constraint("Vertical", 0),
    Sketcher.Constraint("Horizontal", 2),
    Sketcher.Constraint("Vertical", 4),
    Sketcher.Constraint("Horizontal", 6),
    Sketcher.Constraint("Horizontal", 8),
    Sketcher.Constraint("Vertical", 10),
    Sketcher.Constraint("Horizontal", 12),
    Sketcher.Constraint("Vertical", 14),
    Sketcher.Constraint("Equal", 1, 3),
    Sketcher.Constraint("Equal", 3, 5),
    Sketcher.Constraint("Equal", 5, 7),
    Sketcher.Constraint("Equal", 7, 9),
    Sketcher.Constraint("Equal", 9, 11),
    Sketcher.Constraint("Equal", 11, 13),
    Sketcher.Constraint("Equal", 13, 15),
    Sketcher.Constraint("Horizontal", 0, 2, 3, 1),
    Sketcher.Constraint("Horizontal", 4, 2, 7, 1),
    Sketcher.Constraint("Horizontal", 10, 2, 13, 1),
    Sketcher.Constraint("Horizontal", 9, 1, 14, 2),
    Sketcher.Constraint("Vertical", 3, 3, 5, 3),
    Sketcher.Constraint("Vertical", 5, 3, 9, 3),
    Sketcher.Constraint("Vertical", 9, 3, 11, 3),
    Sketcher.Constraint("Vertical", 7, 3, 13, 3),
    Sketcher.Constraint("Vertical", 4, 2, 9, 1),
    Sketcher.Constraint("Equal", 4, 10),
    Sketcher.Constraint("DistanceX", 2, 2, 2, 1, 3.0),
    Sketcher.Constraint("Radius", 1, 1.02),
    Sketcher.Constraint("DistanceX", 1, 3, -1, 1, 85.0),
    Sketcher.Constraint("DistanceY", 3, 3, 5, 3, 10.0),
    Sketcher.Constraint("DistanceY", 9, 3, 3, 3, 28.0),
    Sketcher.Constraint("DistanceY", -1, 1, 1, 3, 9.5),
    Sketcher.Constraint("DistanceX", 0, 2, -1, 1, 84.98),
])
pocket6 = body.newObject("PartDesign::Pocket", "Pocket005")
pocket6.Profile = sketch11
pocket6.Type = "ThroughAll"
pocket6.Reversed = True
doc.recompute()

fillet = body.newObject("PartDesign::Fillet", "Fillet")
fillet.Base = (pocket6, edges_at(pocket6, [
    (-12, 1.5, -10),
    (-12, 1.5, -20),
    (-12, 1.5, 20),
    (-12, 1.5, 10),
    (71, 1.5, -10),
    (71, 1.5, -20),
    (44, 1.5, -20),
    (44, 1.5, -10),
    (71, 1.5, 20),
    (71, 1.5, 10),
    (44, 1.5, 10),
    (44, 1.5, 20),
]))
fillet.Radius = 2
doc.recompute()

fillet2 = body.newObject("PartDesign::Fillet", "Fillet001")
fillet2.Base = (fillet, edges_at(fillet, [
    (-74, 1.5, -20),
    (-74, 1.5, -10),
    (-74, 1.5, 12.5),
    (-74, 1.5, 17.5),
    (-82, 1.5, 17.5),
    (-82, 1.5, 12.5),
    (-74, 1.5, -17.5),
    (-74, 1.5, -12.5),
    (-82, 1.5, -12.5),
    (-82, 1.5, -17.5),
    (-40.5, 1.5, -3),
    (-40.5, 1.5, 3),
    (-24, 1.5, 3),
    (-24, 1.5, -3),
    (71, 1.5, 3),
    (71, 1.5, -3),
    (56, 1.5, -3),
    (56, 1.5, 3),
    (-74, 1.5, 10),
    (-74, 1.5, 20),
]))
fillet2.Radius = 1
doc.recompute()

fillet3 = body.newObject("PartDesign::Fillet", "Fillet002")
fillet3.Base = (fillet2, edges_at(fillet2, [(80, 1.5, -24)]))
fillet3.Radius = 10
doc.recompute()

fillet4 = body.newObject("PartDesign::Fillet", "Fillet003")
fillet4.Base = (fillet3, edges_at(fillet3, [
    (-91.5, 1.5, -24),
    (38.599, 1.5, -20),
    (16, 1.5, -1.921),
    (-6.599, 1.5, -20),
    (41, 1.5, 18.079),
    (18.401, 1.5, 0),
    (41, 1.5, -18.079),
    (-9, 1.5, 18.079),
    (-9, 1.5, -18.079),
    (13.599, 1.5, 0),
    (-53, 1.5, -4),
    (-53, 1.5, 4),
    (-75, 1.5, 4),
    (-75, 1.5, -4),
    (38.599, 1.5, 20),
    (-6.599, 1.5, 20),
    (16, 1.5, 1.921),
]))
fillet4.Radius = 2

doc.recompute()
